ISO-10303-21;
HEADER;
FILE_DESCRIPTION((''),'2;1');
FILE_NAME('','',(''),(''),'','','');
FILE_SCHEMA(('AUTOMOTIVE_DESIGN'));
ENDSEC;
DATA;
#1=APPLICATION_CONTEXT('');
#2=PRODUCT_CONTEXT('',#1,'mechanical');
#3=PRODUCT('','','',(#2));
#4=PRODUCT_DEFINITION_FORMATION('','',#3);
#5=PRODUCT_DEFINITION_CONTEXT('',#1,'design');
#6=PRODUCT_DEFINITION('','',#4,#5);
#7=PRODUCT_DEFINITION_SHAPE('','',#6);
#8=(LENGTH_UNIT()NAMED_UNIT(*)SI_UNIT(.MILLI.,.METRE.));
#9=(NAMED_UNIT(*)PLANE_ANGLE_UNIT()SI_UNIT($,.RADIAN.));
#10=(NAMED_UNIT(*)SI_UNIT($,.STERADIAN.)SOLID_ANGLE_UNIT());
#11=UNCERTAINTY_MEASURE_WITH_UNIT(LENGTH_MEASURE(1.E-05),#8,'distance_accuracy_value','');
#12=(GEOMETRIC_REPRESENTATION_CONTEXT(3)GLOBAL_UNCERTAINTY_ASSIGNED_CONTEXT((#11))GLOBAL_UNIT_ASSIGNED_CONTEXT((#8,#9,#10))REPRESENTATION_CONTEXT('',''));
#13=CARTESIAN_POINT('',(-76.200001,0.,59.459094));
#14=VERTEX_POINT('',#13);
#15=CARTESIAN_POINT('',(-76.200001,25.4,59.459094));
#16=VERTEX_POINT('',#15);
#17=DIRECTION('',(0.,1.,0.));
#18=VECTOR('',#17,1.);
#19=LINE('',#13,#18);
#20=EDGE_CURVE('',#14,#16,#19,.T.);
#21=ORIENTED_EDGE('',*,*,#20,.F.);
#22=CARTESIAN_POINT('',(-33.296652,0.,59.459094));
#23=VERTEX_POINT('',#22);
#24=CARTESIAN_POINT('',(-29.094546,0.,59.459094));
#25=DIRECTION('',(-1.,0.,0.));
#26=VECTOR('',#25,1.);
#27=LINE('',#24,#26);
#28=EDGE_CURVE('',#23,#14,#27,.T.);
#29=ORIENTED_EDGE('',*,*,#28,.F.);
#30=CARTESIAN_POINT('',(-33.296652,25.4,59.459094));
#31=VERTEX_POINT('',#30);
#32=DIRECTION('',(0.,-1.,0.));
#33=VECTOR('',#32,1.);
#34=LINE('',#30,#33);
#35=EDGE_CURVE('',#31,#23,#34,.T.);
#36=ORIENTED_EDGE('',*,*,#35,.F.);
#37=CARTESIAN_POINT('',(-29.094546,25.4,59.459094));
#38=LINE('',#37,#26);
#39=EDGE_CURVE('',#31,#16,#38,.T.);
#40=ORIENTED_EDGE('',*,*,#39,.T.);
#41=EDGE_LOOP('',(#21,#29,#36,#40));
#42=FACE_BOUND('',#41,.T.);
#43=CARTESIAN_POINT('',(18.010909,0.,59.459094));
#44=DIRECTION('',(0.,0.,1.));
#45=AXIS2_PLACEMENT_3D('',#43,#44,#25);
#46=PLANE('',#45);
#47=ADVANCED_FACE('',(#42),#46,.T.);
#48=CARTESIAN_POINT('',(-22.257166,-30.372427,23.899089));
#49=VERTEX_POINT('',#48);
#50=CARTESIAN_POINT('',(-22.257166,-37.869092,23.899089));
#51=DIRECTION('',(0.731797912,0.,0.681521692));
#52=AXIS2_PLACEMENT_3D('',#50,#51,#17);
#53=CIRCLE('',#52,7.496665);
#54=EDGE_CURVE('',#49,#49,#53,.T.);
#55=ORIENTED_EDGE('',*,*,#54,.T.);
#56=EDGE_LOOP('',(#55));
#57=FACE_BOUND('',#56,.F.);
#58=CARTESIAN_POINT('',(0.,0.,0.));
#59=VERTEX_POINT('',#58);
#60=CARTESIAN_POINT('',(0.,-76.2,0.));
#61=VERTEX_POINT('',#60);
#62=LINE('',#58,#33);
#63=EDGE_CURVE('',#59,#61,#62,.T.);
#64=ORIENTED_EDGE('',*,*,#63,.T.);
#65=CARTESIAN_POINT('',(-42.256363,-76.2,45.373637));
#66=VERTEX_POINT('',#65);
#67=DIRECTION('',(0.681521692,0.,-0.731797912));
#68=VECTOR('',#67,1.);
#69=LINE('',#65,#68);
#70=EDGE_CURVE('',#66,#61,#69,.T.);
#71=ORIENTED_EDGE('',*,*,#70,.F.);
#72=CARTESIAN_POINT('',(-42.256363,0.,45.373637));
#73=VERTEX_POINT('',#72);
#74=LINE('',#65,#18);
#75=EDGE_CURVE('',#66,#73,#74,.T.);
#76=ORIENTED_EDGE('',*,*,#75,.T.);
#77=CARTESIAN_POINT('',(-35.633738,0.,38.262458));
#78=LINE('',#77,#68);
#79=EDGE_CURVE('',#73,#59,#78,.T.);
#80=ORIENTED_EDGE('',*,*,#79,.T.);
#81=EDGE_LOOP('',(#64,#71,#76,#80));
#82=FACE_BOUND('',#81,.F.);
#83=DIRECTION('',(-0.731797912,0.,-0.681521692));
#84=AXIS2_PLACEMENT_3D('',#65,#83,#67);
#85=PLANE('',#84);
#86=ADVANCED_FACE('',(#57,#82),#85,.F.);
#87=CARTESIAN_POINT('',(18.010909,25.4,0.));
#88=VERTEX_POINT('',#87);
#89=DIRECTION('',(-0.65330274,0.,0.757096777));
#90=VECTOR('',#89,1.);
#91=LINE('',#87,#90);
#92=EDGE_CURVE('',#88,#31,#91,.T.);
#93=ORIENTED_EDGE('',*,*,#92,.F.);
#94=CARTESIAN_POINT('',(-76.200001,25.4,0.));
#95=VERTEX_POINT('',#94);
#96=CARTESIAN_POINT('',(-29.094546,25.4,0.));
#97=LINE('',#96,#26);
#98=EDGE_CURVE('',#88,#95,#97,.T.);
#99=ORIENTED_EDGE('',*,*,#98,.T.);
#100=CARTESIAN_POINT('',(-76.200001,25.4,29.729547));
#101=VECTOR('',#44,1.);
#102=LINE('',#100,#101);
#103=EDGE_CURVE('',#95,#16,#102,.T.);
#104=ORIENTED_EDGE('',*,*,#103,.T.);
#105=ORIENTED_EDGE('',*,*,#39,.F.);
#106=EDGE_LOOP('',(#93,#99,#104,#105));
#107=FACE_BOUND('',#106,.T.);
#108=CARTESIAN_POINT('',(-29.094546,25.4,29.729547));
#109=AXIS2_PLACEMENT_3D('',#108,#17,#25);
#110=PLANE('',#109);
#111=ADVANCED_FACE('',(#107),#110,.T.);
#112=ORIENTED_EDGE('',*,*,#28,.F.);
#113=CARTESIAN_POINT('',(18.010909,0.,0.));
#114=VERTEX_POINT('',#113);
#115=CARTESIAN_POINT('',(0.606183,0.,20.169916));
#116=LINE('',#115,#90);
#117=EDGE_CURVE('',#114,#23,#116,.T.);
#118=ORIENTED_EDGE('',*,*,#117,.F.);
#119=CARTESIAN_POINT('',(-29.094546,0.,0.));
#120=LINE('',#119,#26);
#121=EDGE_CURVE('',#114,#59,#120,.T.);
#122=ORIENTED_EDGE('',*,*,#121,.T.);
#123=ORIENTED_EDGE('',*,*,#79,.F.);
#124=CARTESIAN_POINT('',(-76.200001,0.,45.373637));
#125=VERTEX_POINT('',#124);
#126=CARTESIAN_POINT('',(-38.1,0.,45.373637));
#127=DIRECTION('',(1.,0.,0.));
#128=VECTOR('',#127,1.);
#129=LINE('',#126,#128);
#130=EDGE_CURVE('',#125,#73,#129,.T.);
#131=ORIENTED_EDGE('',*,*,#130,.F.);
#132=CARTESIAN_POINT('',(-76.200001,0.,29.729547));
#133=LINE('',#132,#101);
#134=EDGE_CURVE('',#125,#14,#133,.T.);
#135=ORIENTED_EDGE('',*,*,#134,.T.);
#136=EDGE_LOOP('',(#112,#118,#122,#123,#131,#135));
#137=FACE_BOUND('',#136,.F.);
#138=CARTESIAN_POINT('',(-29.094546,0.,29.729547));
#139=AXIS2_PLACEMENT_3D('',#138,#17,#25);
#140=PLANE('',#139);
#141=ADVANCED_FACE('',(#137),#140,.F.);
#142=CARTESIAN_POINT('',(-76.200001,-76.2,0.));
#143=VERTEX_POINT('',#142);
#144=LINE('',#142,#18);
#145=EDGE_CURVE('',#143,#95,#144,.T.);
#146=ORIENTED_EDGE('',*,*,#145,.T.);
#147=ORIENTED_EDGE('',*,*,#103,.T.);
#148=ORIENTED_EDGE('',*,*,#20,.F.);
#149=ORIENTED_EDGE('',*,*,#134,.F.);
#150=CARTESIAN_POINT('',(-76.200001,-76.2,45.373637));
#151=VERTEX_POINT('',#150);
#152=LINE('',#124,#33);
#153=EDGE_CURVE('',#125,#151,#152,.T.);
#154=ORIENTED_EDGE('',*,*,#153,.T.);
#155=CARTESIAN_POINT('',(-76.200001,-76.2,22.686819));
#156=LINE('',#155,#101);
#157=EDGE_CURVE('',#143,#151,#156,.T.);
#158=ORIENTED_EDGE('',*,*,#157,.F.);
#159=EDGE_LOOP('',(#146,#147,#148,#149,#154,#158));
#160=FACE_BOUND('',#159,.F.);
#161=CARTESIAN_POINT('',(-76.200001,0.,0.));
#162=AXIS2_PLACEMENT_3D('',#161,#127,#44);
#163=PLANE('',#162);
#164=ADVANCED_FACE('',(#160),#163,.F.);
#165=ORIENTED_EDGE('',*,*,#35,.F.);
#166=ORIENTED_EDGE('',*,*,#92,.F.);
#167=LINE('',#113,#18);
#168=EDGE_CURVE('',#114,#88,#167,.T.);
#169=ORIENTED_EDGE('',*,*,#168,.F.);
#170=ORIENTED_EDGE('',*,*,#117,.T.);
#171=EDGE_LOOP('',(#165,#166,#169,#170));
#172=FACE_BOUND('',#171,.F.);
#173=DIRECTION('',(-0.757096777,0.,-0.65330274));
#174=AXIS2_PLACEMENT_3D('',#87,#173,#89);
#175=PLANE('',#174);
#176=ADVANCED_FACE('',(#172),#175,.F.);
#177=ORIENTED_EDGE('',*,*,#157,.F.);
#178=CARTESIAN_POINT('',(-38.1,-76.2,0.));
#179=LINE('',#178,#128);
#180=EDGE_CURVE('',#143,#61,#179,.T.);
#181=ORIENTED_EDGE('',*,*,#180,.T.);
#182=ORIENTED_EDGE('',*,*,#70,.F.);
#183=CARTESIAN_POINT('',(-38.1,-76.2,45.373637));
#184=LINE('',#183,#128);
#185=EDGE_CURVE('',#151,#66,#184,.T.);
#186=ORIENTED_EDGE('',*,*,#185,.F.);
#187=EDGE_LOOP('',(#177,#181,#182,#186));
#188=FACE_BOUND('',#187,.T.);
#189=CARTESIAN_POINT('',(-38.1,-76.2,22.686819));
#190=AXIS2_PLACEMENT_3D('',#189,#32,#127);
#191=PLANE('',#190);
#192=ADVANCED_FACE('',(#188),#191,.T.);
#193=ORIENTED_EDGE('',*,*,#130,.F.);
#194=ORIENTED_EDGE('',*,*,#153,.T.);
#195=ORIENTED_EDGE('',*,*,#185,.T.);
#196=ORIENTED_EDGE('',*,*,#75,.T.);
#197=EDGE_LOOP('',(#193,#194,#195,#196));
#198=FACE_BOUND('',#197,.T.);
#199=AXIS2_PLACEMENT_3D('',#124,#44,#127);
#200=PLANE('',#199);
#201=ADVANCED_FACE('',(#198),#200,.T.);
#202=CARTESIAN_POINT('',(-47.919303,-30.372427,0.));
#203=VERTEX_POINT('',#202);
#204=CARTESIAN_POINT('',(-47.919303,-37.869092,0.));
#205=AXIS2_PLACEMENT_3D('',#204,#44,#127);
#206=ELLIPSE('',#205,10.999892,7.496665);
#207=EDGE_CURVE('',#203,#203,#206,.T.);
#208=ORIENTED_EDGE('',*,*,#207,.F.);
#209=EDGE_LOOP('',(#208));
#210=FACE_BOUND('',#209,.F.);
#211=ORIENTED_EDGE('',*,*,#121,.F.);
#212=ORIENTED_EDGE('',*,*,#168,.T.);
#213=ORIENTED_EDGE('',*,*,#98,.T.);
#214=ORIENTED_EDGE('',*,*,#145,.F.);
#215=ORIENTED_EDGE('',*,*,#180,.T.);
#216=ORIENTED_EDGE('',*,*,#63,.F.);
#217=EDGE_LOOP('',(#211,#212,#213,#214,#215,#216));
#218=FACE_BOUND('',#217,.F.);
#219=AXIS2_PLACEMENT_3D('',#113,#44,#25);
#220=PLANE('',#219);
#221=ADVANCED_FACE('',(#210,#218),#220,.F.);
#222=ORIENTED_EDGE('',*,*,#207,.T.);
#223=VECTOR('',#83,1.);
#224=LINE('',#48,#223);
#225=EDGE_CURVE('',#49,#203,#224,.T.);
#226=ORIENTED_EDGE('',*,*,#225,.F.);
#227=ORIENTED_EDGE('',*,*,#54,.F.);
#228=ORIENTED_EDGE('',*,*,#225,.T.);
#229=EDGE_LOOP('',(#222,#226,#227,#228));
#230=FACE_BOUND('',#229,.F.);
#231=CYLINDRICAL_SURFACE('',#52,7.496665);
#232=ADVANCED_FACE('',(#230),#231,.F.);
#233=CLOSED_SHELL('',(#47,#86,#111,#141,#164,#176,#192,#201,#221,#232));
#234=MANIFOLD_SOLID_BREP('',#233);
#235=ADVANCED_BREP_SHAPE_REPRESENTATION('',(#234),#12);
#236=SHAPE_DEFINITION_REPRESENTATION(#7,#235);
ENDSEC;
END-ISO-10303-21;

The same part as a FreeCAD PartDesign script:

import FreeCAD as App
import Part
import Sketcher
Q = App.Units.Quantity


def add_polygon(sketch, points):
    """Adds a closed chain of lines whose ends are joined by coincident constraints."""
    first, n = sketch.GeometryCount, len(points)
    for a, b in zip(points, points[1:] + points[:1]):
        sketch.addGeometry(Part.LineSegment(App.Vector(*a, 0), App.Vector(*b, 0)), False)
    for i in range(n):
        sketch.addConstraint(Sketcher.Constraint("Coincident", first + i, 2, first + (i + 1) % n, 1))

doc = App.newDocument("Part")
body = doc.addObject("PartDesign::Body", "Body")

sketch1 = body.newObject("Sketcher::SketchObject", "Sketch")
sketch1.AttachmentSupport = (doc.getObject("XZ_Plane"), [""])
sketch1.MapMode = "FlatFace"
add_polygon(sketch1, [(-76, 45), (-76, 0), (0, 0), (0, 45)])
sketch1.addConstraint(Sketcher.Constraint("Vertical", 0))
sketch1.addConstraint(Sketcher.Constraint("Horizontal", 1))
sketch1.addConstraint(Sketcher.Constraint("Vertical", 2))
sketch1.addConstraint(Sketcher.Constraint("Horizontal", 3))
sketch1.addConstraint(Sketcher.Constraint("Coincident", 1, 2, -1, 1))
sketch1.addConstraint(Sketcher.Constraint("DistanceX", 1, 1, 1, 2, Q("3 in")))
sketch1.addConstraint(Sketcher.Constraint("DistanceY", 0, 2, 0, 1, 45.373637))
pad1 = body.newObject("PartDesign::Pad", "Pad")
pad1.Profile = sketch1
pad1.Length = Q("3 in")

sketch2 = body.newObject("Sketcher::SketchObject", "Sketch001")
sketch2.AttachmentSupport = (doc.getObject("XZ_Plane"), [""])
sketch2.MapMode = "FlatFace"
sketch2.AttachmentOffset = App.Placement(App.Vector(0, 0, 3 * 25.4), App.Rotation())
add_polygon(sketch2, [(0, 45), (-42, 45), (0, 0)])
sketch2.addConstraint(Sketcher.Constraint("Horizontal", 0))
sketch2.addConstraint(Sketcher.Constraint("Vertical", 2))
sketch2.addConstraint(Sketcher.Constraint("Coincident", 1, 2, -1, 1))
sketch2.addConstraint(Sketcher.Constraint("Distance", 1, 62.002961))
sketch2.addConstraint(Sketcher.Constraint("DistanceX", 0, 2, 0, 1, 42.256363))
pocket1 = body.newObject("PartDesign::Pocket", "Pocket")
pocket1.Profile = sketch2
pocket1.Type = "ThroughAll"

sketch3 = body.newObject("Sketcher::SketchObject", "Sketch002")
sketch3.Placement = App.Placement(App.Vector(0, 0, 0), App.Rotation(App.Vector(0, 1, 0), App.Vector(-0.681521692, 0, 0.731797912), App.Vector(0.731797912, 0, 0.681521692), "ZXY"))
sketch3.addGeometry(Part.Circle(App.Vector(-38, 33, 0), App.Vector(0, 0, 1), 7), False)
sketch3.addConstraint(Sketcher.Constraint("Diameter", 0, 14.993331))
sketch3.addConstraint(Sketcher.Constraint("DistanceX", 0, 3, -1, 1, 37.869092))
sketch3.addConstraint(Sketcher.Constraint("DistanceY", -1, 1, 0, 3, 32.658044))
pocket2 = body.newObject("PartDesign::Pocket", "Pocket001")
pocket2.Profile = sketch3
pocket2.Type = "ThroughAll"

sketch4 = body.newObject("Sketcher::SketchObject", "Sketch003")
sketch4.AttachmentSupport = (doc.getObject("XZ_Plane"), [""])
sketch4.MapMode = "FlatFace"
add_polygon(sketch4, [(18, 59), (18, 0), (-76, 0), (-76, 59)])
sketch4.addConstraint(Sketcher.Constraint("Vertical", 0))
sketch4.addConstraint(Sketcher.Constraint("Horizontal", 1))
sketch4.addConstraint(Sketcher.Constraint("Vertical", 2))
sketch4.addConstraint(Sketcher.Constraint("Horizontal", 3))
sketch4.addConstraint(Sketcher.Constraint("PointOnObject", 0, 2, -1))
sketch4.addConstraint(Sketcher.Constraint("DistanceX", 1, 2, -1, 1, Q("3 in")))
sketch4.addConstraint(Sketcher.Constraint("DistanceX", 1, 2, 1, 1, 94.21091))
sketch4.addConstraint(Sketcher.Constraint("DistanceY", 0, 2, 0, 1, 59.459094))
pad2 = body.newObject("PartDesign::Pad", "Pad001")
pad2.Profile = sketch4
pad2.Length = Q("1 in")
pad2.Reversed = True

sketch5 = body.newObject("Sketcher::SketchObject", "Sketch004")
sketch5.AttachmentSupport = (doc.getObject("XZ_Plane"), [""])
sketch5.MapMode = "FlatFace"
sketch5.AttachmentOffset = App.Placement(App.Vector(0, 0, -1 * 25.4), App.Rotation())
add_polygon(sketch5, [(18, 59), (18, 0), (-33, 59)])
sketch5.addConstraint(Sketcher.Constraint("Vertical", 0))
sketch5.addConstraint(Sketcher.Constraint("Horizontal", 2))
sketch5.addConstraint(Sketcher.Constraint("PointOnObject", 0, 2, -1))
sketch5.addConstraint(Sketcher.Constraint("DistanceX", 2, 1, 2, 2, 51.307561))
sketch5.addConstraint(Sketcher.Constraint("Distance", 1, 78.535659))
sketch5.addConstraint(Sketcher.Constraint("DistanceX", -1, 1, 0, 2, 18.010909))
pocket3 = body.newObject("PartDesign::Pocket", "Pocket002")
pocket3.Profile = sketch5
pocket3.Type = "ThroughAll"
pocket3.Reversed = True

doc.recompute()
